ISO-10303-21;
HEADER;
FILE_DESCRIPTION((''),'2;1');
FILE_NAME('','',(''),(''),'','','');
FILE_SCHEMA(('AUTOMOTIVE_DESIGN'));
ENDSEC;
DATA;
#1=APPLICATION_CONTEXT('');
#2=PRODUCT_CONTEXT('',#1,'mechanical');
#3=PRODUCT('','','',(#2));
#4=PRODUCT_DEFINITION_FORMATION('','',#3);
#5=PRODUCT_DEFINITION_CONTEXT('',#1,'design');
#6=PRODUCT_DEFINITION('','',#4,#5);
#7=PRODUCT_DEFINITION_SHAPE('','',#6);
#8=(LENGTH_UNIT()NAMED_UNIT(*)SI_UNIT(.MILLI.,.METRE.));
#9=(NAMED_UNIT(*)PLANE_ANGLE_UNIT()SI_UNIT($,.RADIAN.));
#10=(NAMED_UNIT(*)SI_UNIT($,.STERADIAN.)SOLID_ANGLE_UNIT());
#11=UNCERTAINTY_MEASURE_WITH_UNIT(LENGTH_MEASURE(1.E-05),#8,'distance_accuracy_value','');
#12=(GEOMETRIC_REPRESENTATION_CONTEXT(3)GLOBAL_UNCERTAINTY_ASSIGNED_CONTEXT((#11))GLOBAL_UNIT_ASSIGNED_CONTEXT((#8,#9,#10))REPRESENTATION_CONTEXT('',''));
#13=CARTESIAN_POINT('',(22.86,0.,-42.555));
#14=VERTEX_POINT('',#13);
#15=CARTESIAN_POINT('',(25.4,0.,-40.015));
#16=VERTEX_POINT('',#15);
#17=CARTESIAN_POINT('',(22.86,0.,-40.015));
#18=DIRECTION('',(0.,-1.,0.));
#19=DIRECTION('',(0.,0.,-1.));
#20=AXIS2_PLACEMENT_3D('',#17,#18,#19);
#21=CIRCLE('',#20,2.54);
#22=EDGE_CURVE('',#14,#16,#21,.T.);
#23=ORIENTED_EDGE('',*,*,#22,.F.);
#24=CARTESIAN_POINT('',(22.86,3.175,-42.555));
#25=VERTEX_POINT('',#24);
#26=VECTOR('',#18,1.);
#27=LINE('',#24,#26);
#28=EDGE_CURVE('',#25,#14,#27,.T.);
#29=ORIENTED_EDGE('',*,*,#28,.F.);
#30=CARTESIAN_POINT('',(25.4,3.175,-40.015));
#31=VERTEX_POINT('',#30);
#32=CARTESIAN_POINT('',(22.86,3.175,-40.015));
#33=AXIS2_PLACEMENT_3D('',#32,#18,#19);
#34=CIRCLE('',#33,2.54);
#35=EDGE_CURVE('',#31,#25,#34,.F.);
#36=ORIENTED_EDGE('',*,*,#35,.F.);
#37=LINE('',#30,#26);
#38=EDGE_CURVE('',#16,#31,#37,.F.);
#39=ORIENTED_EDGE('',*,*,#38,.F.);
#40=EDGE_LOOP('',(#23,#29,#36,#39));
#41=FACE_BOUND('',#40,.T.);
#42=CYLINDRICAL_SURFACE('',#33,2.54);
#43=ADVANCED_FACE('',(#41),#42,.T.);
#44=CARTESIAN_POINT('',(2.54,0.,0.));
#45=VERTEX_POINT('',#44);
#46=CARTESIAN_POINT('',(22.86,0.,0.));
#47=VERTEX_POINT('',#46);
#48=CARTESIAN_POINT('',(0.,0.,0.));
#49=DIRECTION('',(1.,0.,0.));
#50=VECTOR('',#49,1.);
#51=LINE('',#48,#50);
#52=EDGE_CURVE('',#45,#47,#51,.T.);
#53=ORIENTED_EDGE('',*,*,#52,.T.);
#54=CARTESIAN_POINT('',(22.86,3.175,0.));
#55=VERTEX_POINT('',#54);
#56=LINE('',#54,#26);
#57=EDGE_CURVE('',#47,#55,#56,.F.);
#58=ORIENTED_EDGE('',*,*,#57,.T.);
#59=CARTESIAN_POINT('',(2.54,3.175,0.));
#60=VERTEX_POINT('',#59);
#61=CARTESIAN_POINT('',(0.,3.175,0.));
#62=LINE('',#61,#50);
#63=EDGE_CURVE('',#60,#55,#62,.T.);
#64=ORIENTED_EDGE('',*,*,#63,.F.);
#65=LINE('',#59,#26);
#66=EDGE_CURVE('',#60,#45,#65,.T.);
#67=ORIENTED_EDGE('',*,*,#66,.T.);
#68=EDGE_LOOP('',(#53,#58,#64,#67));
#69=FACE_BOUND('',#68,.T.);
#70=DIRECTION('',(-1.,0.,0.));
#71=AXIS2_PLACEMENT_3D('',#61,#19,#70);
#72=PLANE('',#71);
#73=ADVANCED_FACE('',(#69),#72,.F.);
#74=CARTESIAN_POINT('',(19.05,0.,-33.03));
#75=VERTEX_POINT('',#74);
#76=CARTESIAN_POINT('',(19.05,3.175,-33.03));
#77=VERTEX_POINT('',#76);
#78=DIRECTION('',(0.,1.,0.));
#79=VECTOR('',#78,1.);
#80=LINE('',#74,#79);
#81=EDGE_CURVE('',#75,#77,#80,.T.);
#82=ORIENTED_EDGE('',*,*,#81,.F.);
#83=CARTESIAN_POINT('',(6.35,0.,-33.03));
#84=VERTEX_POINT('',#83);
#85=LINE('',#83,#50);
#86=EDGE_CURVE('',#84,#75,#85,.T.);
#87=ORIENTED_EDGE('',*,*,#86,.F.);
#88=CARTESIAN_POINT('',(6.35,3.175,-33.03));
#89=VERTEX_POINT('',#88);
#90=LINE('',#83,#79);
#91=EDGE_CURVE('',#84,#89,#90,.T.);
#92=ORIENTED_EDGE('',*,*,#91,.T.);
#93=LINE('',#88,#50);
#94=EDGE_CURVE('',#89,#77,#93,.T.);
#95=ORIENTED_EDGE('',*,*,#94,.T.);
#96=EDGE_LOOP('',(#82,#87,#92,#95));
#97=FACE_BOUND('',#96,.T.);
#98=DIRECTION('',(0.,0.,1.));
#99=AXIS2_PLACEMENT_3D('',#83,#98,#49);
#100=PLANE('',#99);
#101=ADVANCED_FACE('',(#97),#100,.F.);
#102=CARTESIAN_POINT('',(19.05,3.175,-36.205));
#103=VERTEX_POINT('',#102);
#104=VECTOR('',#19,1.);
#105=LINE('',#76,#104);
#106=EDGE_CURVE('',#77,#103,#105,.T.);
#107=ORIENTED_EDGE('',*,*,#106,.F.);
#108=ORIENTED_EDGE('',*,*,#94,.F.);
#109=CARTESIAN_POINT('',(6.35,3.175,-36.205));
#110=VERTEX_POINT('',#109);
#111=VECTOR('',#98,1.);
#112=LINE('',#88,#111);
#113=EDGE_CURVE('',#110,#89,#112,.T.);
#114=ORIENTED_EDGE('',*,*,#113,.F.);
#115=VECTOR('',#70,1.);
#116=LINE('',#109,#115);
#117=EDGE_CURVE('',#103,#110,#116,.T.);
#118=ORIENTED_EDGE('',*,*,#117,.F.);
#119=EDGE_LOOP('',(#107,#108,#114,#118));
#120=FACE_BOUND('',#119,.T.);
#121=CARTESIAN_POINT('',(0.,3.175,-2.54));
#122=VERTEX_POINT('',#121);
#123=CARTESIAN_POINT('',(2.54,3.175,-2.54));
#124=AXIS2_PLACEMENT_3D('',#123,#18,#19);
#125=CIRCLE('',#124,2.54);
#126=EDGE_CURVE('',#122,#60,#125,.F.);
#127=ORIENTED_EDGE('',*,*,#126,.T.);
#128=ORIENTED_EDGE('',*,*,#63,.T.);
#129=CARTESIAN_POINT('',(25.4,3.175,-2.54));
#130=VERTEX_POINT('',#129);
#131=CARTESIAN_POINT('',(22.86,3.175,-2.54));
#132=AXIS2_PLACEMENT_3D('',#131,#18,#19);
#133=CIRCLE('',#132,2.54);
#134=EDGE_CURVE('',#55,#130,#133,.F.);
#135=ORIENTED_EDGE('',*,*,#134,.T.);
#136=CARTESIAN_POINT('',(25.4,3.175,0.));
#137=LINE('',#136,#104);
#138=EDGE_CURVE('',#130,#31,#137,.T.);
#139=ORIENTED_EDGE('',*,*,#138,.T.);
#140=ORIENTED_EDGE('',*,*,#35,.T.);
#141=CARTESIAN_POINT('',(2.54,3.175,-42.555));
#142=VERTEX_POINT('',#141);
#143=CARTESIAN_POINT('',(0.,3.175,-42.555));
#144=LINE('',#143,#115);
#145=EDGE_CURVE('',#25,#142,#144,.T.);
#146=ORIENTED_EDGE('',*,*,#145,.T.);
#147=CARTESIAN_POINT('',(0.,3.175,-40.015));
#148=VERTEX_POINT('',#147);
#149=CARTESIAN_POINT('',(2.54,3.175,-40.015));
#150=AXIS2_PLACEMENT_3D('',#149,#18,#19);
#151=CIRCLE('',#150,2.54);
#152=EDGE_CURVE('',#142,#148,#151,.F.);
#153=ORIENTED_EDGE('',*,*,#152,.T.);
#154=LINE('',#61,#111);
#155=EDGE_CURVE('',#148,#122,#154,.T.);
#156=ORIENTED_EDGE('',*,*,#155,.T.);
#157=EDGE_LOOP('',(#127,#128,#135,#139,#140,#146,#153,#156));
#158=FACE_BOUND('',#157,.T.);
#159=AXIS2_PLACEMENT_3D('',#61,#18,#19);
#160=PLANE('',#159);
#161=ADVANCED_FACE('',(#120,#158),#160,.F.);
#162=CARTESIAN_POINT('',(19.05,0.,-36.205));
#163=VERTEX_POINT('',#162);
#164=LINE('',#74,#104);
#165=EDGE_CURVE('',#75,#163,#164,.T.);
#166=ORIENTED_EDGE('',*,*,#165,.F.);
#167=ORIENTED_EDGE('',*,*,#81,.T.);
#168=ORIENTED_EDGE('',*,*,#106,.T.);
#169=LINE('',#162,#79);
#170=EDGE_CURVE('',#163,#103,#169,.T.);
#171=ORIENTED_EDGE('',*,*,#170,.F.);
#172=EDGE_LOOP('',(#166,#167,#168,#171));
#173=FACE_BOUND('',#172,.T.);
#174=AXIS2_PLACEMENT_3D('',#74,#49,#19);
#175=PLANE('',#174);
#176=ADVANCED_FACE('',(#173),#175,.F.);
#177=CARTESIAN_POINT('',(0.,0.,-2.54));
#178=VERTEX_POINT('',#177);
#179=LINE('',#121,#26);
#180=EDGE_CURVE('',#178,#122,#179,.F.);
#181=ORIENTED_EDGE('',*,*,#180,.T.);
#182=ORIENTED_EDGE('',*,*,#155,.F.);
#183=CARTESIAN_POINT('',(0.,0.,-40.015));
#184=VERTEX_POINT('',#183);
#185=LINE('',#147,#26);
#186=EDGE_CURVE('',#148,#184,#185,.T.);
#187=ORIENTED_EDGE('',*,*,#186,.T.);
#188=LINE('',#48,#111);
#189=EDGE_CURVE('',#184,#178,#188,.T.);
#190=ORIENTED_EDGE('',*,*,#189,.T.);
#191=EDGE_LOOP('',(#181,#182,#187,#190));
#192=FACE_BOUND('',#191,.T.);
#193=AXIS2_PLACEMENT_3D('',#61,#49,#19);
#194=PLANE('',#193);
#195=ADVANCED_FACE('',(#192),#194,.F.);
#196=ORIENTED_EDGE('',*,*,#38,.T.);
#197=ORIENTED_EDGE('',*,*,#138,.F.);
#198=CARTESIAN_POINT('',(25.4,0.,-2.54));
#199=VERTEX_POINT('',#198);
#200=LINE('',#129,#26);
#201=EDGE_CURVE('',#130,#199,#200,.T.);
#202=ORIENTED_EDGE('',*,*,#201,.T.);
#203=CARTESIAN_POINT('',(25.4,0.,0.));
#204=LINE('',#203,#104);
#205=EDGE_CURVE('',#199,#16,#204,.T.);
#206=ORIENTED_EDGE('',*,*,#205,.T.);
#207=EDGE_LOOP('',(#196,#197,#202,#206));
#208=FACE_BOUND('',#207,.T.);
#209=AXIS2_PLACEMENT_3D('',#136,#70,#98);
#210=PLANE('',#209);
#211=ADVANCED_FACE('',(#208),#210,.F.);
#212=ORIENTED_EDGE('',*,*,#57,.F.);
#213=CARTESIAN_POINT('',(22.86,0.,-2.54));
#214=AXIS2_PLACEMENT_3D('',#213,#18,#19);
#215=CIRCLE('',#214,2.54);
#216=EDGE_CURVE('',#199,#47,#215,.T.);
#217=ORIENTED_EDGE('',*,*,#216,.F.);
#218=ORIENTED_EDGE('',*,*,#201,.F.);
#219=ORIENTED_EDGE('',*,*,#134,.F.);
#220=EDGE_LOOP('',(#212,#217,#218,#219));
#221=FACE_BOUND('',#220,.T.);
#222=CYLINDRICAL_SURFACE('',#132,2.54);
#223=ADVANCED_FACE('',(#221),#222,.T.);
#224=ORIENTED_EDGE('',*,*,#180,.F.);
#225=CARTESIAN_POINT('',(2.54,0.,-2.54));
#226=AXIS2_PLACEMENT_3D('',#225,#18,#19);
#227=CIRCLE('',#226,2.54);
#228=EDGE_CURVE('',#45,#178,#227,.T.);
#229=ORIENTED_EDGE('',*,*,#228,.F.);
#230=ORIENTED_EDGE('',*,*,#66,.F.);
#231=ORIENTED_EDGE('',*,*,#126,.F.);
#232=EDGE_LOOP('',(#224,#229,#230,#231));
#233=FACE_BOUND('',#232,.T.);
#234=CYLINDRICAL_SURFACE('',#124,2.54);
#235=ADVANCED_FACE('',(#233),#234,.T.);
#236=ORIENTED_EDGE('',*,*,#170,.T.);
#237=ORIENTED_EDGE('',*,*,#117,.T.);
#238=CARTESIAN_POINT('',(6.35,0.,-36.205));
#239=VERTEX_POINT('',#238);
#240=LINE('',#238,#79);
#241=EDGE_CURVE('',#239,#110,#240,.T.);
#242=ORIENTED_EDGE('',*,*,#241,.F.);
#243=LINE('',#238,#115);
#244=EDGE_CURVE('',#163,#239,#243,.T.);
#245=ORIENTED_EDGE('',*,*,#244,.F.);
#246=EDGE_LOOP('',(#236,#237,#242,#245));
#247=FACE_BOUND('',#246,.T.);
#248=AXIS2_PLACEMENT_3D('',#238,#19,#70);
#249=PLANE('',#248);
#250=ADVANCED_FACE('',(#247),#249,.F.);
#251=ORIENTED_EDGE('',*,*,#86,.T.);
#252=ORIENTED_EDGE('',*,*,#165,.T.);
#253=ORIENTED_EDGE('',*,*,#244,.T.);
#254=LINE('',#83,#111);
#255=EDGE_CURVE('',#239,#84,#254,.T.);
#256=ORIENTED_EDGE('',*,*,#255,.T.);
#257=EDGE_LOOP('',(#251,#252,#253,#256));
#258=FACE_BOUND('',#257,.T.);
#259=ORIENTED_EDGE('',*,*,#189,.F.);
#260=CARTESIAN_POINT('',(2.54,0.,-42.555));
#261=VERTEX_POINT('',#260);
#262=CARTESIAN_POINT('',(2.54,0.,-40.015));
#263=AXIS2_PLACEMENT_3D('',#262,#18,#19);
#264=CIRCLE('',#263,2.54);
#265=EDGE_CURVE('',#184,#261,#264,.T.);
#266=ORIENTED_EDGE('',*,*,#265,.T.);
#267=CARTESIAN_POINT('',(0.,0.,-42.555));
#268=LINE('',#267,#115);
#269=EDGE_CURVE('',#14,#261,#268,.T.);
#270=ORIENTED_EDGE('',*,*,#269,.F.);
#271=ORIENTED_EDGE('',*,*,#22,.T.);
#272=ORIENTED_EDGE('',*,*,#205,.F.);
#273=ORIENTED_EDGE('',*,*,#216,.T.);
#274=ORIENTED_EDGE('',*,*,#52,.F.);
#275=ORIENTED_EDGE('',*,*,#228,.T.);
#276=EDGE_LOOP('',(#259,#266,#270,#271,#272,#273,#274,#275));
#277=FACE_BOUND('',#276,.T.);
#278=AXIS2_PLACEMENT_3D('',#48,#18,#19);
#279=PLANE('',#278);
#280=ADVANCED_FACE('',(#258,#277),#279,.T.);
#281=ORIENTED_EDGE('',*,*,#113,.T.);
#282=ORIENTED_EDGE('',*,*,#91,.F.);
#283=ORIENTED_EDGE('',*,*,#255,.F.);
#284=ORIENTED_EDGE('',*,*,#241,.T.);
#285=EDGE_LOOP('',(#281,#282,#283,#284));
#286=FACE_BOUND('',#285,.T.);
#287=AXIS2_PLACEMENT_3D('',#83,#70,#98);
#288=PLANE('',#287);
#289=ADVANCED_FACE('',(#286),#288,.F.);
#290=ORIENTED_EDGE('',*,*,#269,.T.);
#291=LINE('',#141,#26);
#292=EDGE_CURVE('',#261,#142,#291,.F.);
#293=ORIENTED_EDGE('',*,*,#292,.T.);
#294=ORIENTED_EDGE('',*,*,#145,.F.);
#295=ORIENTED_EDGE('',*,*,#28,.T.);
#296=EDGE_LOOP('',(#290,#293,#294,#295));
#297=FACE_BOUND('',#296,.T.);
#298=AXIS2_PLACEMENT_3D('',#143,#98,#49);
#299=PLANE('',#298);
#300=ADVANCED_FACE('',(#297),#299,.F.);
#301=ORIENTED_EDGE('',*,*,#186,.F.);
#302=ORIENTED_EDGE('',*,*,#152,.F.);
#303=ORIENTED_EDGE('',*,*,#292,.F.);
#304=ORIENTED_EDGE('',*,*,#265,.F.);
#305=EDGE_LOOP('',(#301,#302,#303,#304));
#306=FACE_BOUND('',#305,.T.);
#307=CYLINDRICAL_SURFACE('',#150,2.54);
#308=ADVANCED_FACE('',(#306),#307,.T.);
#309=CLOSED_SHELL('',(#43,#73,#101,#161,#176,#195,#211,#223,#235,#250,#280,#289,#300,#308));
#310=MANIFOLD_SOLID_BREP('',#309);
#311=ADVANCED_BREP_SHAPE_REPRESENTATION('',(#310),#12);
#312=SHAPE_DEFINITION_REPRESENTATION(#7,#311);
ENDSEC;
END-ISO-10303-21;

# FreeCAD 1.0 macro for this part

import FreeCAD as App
import Part
import Sketcher
Q = App.Units.Quantity


def edges_at(feature, points):
    """Names of the edges that pass closest to the given points."""
    edges = feature.Shape.Edges
    near = lambda p: min(range(len(edges)), key=lambda i: edges[i].distToShape(Part.Vertex(*p))[0])
    return sorted({f"Edge{near(p) + 1}" for p in points})


def add_polygon(sketch, points):
    """Adds a closed chain of lines whose ends are joined by coincident constraints."""
    first, n = sketch.GeometryCount, len(points)
    for a, b in zip(points, points[1:] + points[:1]):
        sketch.addGeometry(Part.LineSegment(App.Vector(*a, 0), App.Vector(*b, 0)), False)
    for i in range(n):
        sketch.addConstraint(Sketcher.Constraint("Coincident", first + i, 2, first + (i + 1) % n, 1))

doc = App.newDocument("Part")
body = doc.addObject("PartDesign::Body", "Body")

# Sketch on XZ plane
sketch1 = body.newObject("Sketcher::SketchObject", "Sketch")
sketch1.AttachmentSupport = (doc.getObject("XZ_Plane"), [""])
sketch1.MapMode = "FlatFace"
add_polygon(sketch1, [(0, -43), (0, 0), (25, 0), (25, -43)])  # lines 0-3
sketch1.addConstraint([
    Sketcher.Constraint("Vertical", 0),
    Sketcher.Constraint("Horizontal", 1),
    Sketcher.Constraint("Vertical", 2),
    Sketcher.Constraint("Horizontal", 3),
    Sketcher.Constraint("Coincident", 0, 2, -1, 1),
    Sketcher.Constraint("DistanceX", 1, 1, 1, 2, Q("1 in")),
    Sketcher.Constraint("DistanceY", 0, 1, 0, 2, Q("42.555 mm")),
])
pad1 = body.newObject("PartDesign::Pad", "Pad")
pad1.Profile = sketch1
pad1.Length = Q("0.125 in")
pad1.Reversed = True

# Sketch on XZ plane
sketch2 = body.newObject("Sketcher::SketchObject", "Sketch001")
sketch2.AttachmentSupport = (doc.getObject("XZ_Plane"), [""])
sketch2.MapMode = "FlatFace"
sketch2.AttachmentOffset = App.Placement(App.Vector(0, 0, -0.125 * 25.4), App.Rotation())
add_polygon(sketch2, [(6.3, -36.2), (6.3, -33), (19.1, -33), (19.1, -36.2)])  # lines 0-3
sketch2.addConstraint([
    Sketcher.Constraint("Vertical", 0),
    Sketcher.Constraint("Horizontal", 1),
    Sketcher.Constraint("Vertical", 2),
    Sketcher.Constraint("Horizontal", 3),
    Sketcher.Constraint("DistanceX", 1, 1, 1, 2, Q("0.5 in")),
    Sketcher.Constraint("DistanceY", 0, 1, 0, 2, Q("0.125 in")),
    Sketcher.Constraint("DistanceX", -1, 1, 0, 2, Q("0.25 in")),
    Sketcher.Constraint("DistanceY", 0, 2, -1, 1, Q("33.03 mm")),
])
pocket1 = body.newObject("PartDesign::Pocket", "Pocket")
pocket1.Profile = sketch2
pocket1.Type = "ThroughAll"
pocket1.Reversed = True
doc.recompute()

fillet = body.newObject("PartDesign::Fillet", "Fillet")
fillet.Base = (pocket1, edges_at(pocket1, [
    (0, 1.587, -42.555),
    (25.4, 1.587, -42.555),
    (25.4, 1.587, 0),
    (0, 1.587, 0),
]))
fillet.Radius = Q("0.1 in")

doc.recompute()
